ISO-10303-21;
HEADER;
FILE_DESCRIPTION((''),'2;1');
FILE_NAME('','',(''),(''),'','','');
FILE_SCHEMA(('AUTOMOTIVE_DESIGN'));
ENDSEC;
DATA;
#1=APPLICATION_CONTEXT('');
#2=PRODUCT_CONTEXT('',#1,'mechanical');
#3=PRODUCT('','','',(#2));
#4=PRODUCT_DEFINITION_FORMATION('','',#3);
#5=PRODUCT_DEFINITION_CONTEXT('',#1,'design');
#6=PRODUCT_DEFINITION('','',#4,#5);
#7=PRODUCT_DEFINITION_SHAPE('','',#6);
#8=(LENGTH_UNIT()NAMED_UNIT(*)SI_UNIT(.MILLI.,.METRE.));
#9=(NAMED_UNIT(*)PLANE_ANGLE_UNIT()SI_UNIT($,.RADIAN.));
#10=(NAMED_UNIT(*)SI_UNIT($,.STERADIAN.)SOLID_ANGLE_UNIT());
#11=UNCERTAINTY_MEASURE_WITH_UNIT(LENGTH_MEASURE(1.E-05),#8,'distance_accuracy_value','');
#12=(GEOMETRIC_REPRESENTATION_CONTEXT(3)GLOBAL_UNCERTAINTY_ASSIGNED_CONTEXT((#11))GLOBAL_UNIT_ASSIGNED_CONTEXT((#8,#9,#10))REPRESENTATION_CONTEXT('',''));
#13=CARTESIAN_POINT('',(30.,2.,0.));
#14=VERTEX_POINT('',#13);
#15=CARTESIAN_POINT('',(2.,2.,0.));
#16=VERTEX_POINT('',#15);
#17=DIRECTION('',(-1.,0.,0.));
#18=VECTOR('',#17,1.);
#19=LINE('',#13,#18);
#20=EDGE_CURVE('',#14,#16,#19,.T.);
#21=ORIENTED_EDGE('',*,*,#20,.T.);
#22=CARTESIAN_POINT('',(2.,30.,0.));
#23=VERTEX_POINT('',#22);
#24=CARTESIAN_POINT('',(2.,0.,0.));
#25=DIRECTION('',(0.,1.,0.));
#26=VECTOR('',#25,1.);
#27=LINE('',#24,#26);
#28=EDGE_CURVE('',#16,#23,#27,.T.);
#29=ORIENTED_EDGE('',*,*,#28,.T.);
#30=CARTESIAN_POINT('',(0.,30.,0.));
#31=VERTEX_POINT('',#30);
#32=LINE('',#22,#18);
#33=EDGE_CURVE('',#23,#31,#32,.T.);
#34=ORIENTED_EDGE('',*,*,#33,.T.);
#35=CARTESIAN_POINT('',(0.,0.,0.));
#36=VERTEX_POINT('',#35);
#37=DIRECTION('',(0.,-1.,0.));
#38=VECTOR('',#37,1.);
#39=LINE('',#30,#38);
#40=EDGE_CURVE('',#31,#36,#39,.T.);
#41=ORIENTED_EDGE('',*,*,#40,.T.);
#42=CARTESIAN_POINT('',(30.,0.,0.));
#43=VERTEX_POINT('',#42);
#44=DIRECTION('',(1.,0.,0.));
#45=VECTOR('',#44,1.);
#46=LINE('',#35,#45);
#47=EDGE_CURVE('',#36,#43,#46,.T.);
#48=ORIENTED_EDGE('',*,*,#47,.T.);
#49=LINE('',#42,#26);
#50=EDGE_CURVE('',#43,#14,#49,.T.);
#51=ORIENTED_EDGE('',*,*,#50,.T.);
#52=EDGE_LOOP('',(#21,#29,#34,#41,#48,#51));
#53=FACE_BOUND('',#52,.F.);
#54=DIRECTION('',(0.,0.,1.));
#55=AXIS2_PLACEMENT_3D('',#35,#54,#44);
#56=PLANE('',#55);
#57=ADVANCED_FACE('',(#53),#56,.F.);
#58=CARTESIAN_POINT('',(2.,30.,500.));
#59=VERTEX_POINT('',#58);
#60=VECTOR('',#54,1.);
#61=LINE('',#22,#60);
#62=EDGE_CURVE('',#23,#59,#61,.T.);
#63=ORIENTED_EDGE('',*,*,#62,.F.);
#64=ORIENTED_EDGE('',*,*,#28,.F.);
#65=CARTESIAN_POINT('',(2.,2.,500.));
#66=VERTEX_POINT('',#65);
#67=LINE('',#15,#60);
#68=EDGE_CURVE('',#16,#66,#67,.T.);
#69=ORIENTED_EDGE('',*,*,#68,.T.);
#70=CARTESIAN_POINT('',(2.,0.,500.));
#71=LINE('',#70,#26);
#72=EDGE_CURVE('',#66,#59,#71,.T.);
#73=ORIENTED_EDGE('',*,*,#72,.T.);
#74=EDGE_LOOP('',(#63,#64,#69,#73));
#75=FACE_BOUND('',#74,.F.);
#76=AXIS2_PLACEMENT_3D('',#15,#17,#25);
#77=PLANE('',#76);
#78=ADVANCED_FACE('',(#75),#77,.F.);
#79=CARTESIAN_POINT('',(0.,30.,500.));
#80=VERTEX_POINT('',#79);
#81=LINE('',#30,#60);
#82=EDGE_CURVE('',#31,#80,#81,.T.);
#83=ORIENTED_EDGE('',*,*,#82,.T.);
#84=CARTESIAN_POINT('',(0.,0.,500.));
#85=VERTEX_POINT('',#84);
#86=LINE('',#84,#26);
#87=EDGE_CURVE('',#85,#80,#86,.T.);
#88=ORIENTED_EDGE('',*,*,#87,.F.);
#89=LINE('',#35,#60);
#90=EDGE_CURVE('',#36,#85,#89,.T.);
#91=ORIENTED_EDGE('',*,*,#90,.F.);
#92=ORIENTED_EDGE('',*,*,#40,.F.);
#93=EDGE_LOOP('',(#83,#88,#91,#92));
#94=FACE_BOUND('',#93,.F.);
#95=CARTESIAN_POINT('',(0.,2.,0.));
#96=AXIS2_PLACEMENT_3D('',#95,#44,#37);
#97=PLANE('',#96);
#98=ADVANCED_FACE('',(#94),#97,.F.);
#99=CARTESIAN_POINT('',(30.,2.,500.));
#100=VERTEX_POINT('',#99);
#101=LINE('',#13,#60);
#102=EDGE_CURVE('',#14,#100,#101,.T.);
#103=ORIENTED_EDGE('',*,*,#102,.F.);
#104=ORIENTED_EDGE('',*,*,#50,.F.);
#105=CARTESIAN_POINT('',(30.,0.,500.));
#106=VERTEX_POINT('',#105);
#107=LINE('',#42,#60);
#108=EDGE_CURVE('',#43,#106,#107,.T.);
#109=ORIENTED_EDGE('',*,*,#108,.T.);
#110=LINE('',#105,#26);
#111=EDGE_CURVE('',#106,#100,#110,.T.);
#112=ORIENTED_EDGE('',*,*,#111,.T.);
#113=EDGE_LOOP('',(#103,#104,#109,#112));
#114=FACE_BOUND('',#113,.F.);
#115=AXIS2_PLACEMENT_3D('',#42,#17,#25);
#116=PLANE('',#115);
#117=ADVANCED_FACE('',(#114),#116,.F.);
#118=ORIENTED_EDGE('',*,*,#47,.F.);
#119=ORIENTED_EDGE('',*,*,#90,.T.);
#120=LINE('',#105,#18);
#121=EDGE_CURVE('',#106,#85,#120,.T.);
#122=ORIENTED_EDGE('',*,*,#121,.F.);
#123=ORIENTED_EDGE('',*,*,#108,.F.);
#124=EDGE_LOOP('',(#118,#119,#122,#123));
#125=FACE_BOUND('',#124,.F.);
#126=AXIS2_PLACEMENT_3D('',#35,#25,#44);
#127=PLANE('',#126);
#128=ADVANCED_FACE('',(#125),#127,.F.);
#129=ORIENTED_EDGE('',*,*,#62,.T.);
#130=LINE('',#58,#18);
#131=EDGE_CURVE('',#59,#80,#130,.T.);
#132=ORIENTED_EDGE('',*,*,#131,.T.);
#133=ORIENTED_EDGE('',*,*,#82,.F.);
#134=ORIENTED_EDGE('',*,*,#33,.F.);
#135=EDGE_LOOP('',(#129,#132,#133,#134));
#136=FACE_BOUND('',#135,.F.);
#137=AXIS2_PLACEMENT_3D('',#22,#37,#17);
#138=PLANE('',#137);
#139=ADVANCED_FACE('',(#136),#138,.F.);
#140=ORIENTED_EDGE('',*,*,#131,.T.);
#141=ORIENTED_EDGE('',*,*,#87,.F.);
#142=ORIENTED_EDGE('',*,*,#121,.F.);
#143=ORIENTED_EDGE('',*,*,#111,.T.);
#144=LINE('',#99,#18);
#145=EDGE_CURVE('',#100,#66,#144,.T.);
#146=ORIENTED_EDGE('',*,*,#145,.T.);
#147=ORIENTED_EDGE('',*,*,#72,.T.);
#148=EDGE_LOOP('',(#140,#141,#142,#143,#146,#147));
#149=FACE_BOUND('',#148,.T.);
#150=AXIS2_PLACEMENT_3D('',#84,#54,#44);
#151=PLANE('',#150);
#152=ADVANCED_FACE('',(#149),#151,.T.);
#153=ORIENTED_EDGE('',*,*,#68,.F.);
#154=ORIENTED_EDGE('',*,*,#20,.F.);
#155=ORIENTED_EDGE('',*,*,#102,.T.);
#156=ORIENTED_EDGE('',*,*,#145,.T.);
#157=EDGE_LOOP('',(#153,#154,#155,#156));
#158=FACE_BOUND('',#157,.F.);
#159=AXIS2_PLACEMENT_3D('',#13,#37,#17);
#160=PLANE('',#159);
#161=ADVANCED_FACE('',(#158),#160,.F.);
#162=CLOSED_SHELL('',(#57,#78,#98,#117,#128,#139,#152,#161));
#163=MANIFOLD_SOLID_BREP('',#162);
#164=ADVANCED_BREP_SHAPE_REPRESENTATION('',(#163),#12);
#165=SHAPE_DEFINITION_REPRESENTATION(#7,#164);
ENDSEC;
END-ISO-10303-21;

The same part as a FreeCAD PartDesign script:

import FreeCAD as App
import Part
import Sketcher
from FreeCAD import Vector
Q = App.Units.Quantity

doc = App.newDocument("Part")
params = doc.addObject("Spreadsheet::Sheet", "Params")
for row, (alias, value) in enumerate([
    ("sketch1_width", "30 mm"),
    ("sketch1_width2", "2 mm"),
    ("pad1_length", "500 mm"),
], start=1):
    params.set(f"A{row}", alias)
    params.set(f"B{row}", "=" + value)
    params.setAlias(f"B{row}", alias)

body = doc.addObject("PartDesign::Body", "Body")

sketch1 = body.newObject("Sketcher::SketchObject", "Sketch")
sketch1.AttachmentSupport = (doc.getObject("XY_Plane"), [""])
sketch1.MapMode = "FlatFace"
sketch1.addGeometry(Part.LineSegment(Vector(0, 0, 0), Vector(30, 0, 0)), False)
sketch1.addGeometry(Part.LineSegment(Vector(30, 0, 0), Vector(30, 2, 0)), False)
sketch1.addGeometry(Part.LineSegment(Vector(30, 2, 0), Vector(2, 2, 0)), False)
sketch1.addGeometry(Part.LineSegment(Vector(2, 2, 0), Vector(2, 30, 0)), False)
sketch1.addGeometry(Part.LineSegment(Vector(2, 30, 0), Vector(0, 30, 0)), False)
sketch1.addGeometry(Part.LineSegment(Vector(0, 30, 0), Vector(0, 0, 0)), False)
sketch1.addConstraint(Sketcher.Constraint("Coincident", 0, 2, 1, 1))
sketch1.addConstraint(Sketcher.Constraint("Coincident", 1, 2, 2, 1))
sketch1.addConstraint(Sketcher.Constraint("Coincident", 2, 2, 3, 1))
sketch1.addConstraint(Sketcher.Constraint("Coincident", 3, 2, 4, 1))
sketch1.addConstraint(Sketcher.Constraint("Coincident", 4, 2, 5, 1))
sketch1.addConstraint(Sketcher.Constraint("Coincident", 5, 2, 0, 1))
sketch1.addConstraint(Sketcher.Constraint("Horizontal", 0))
sketch1.addConstraint(Sketcher.Constraint("Vertical", 1))
sketch1.addConstraint(Sketcher.Constraint("Horizontal", 2))
sketch1.addConstraint(Sketcher.Constraint("Vertical", 3))
sketch1.addConstraint(Sketcher.Constraint("Horizontal", 4))
sketch1.addConstraint(Sketcher.Constraint("Vertical", 5))
sketch1.addConstraint(Sketcher.Constraint("Coincident", 5, 2, -1, 1))
sketch1.addConstraint(Sketcher.Constraint("Equal", 4, 1))
sketch1.addConstraint(Sketcher.Constraint("Equal", 2, 3))
sketch1.addConstraint(Sketcher.Constraint("DistanceX", 0, 1, 0, 2, Q("30 mm")))
sketch1.addConstraint(Sketcher.Constraint("DistanceX", 4, 2, 4, 1, Q("2 mm")))
sketch1.setExpression("Constraints[15]", "Params.sketch1_width")
sketch1.setExpression("Constraints[16]", "Params.sketch1_width2")
pad1 = body.newObject("PartDesign::Pad", "Pad")
pad1.Profile = sketch1
pad1.setExpression("Length", "Params.pad1_length")

doc.recompute()
